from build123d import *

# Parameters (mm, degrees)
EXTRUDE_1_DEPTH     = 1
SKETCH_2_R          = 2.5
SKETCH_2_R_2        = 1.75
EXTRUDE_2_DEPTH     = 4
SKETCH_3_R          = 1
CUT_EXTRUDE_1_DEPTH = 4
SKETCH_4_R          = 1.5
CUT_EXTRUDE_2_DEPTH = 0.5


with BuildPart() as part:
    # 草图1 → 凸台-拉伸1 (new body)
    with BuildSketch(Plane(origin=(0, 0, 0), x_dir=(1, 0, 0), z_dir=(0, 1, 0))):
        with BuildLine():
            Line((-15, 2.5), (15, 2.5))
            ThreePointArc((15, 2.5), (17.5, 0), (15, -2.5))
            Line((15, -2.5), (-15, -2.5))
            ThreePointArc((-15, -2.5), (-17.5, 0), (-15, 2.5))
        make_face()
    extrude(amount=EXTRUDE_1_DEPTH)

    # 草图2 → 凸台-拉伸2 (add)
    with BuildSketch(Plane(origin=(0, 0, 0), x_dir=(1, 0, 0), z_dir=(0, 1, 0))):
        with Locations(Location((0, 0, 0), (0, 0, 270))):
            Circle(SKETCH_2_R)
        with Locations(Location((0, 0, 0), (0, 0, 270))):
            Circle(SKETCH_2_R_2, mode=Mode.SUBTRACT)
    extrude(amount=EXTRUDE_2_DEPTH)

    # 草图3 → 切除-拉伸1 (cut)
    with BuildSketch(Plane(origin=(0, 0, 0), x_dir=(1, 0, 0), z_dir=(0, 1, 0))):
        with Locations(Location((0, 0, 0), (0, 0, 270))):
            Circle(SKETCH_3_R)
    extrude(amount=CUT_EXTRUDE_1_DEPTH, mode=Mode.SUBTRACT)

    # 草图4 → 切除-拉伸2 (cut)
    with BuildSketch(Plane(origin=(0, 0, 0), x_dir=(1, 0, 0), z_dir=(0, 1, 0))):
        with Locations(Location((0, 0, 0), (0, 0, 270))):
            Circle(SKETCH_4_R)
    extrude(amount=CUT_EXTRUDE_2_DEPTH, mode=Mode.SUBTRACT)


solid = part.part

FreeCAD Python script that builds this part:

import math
import FreeCAD as App
import Part
import Sketcher

V = App.Vector
Q = App.Units.Quantity

doc = App.newDocument("Part")
body = doc.addObject("PartDesign::Body", "Body")

sketch1 = body.newObject("Sketcher::SketchObject", "Sketch")
sketch1.AttachmentSupport = (doc.getObject("XZ_Plane"), [""])
sketch1.MapMode = "FlatFace"
sketch1.addGeometry(Part.LineSegment(V(15, -2.5, 0), V(-15, -2.5, 0)), False)
sketch1.addGeometry(Part.ArcOfCircle(Part.Circle(V(-15, 0, 0), V(0, 0, 1), 2.5), math.radians(90), math.radians(270)), False)
sketch1.addGeometry(Part.LineSegment(V(-15, 2.5, 0), V(15, 2.5, 0)), False)
sketch1.addGeometry(Part.ArcOfCircle(Part.Circle(V(15, 0, 0), V(0, 0, 1), 2.5), math.radians(-90), math.radians(90)), False)
sketch1.addConstraint(Sketcher.Constraint("Tangent", 0, 2, 1, 2))
sketch1.addConstraint(Sketcher.Constraint("Tangent", 1, 1, 2, 1))
sketch1.addConstraint(Sketcher.Constraint("Tangent", 2, 2, 3, 2))
sketch1.addConstraint(Sketcher.Constraint("Tangent", 3, 1, 0, 1))
sketch1.addConstraint(Sketcher.Constraint("Horizontal", 0))
sketch1.addConstraint(Sketcher.Constraint("Horizontal", 2))
sketch1.addConstraint(Sketcher.Constraint("Symmetric", 1, 3, 3, 3, -1, 1))
sketch1.addConstraint(Sketcher.Constraint("Radius", 1, Q("2.5 mm")))
sketch1.addConstraint(Sketcher.Constraint("DistanceX", 0, 2, 0, 1, Q("30 mm")))
pad1 = body.newObject("PartDesign::Pad", "Pad")
pad1.Profile = sketch1
pad1.Length = 1
pad1.Reversed = True

sketch2 = body.newObject("Sketcher::SketchObject", "Sketch001")
sketch2.AttachmentSupport = (doc.getObject("XZ_Plane"), [""])
sketch2.MapMode = "FlatFace"
sketch2.addGeometry(Part.Circle(V(0, 0, 0), V(0, 0, 1), 2.5), False)
sketch2.addGeometry(Part.Circle(V(0, 0, 0), V(0, 0, 1), 1.8), False)
sketch2.addConstraint(Sketcher.Constraint("Coincident", 0, 3, -1, 1))
sketch2.addConstraint(Sketcher.Constraint("Coincident", 1, 3, -1, 1))
sketch2.addConstraint(Sketcher.Constraint("Diameter", 0, Q("5 mm")))
sketch2.addConstraint(Sketcher.Constraint("Diameter", 1, Q("3.5 mm")))
pad2 = body.newObject("PartDesign::Pad", "Pad001")
pad2.Profile = sketch2
pad2.Length = 4
pad2.Reversed = True

sketch3 = body.newObject("Sketcher::SketchObject", "Sketch002")
sketch3.AttachmentSupport = (doc.getObject("XZ_Plane"), [""])
sketch3.MapMode = "FlatFace"
sketch3.addGeometry(Part.Circle(V(0, 0, 0), V(0, 0, 1), 1), False)
sketch3.addConstraint(Sketcher.Constraint("Coincident", 0, 3, -1, 1))
sketch3.addConstraint(Sketcher.Constraint("Diameter", 0, Q("2 mm")))
pocket1 = body.newObject("PartDesign::Pocket", "Pocket")
pocket1.Profile = sketch3
pocket1.Length = 4

sketch4 = body.newObject("Sketcher::SketchObject", "Sketch003")
sketch4.AttachmentSupport = (doc.getObject("XZ_Plane"), [""])
sketch4.MapMode = "FlatFace"
sketch4.addGeometry(Part.Circle(V(0, 0, 0), V(0, 0, 1), 1.5), False)
sketch4.addConstraint(Sketcher.Constraint("Coincident", 0, 3, -1, 1))
sketch4.addConstraint(Sketcher.Constraint("Diameter", 0, Q("3 mm")))
pocket2 = body.newObject("PartDesign::Pocket", "Pocket001")
pocket2.Profile = sketch4
pocket2.Length = 0.5

doc.recompute()
